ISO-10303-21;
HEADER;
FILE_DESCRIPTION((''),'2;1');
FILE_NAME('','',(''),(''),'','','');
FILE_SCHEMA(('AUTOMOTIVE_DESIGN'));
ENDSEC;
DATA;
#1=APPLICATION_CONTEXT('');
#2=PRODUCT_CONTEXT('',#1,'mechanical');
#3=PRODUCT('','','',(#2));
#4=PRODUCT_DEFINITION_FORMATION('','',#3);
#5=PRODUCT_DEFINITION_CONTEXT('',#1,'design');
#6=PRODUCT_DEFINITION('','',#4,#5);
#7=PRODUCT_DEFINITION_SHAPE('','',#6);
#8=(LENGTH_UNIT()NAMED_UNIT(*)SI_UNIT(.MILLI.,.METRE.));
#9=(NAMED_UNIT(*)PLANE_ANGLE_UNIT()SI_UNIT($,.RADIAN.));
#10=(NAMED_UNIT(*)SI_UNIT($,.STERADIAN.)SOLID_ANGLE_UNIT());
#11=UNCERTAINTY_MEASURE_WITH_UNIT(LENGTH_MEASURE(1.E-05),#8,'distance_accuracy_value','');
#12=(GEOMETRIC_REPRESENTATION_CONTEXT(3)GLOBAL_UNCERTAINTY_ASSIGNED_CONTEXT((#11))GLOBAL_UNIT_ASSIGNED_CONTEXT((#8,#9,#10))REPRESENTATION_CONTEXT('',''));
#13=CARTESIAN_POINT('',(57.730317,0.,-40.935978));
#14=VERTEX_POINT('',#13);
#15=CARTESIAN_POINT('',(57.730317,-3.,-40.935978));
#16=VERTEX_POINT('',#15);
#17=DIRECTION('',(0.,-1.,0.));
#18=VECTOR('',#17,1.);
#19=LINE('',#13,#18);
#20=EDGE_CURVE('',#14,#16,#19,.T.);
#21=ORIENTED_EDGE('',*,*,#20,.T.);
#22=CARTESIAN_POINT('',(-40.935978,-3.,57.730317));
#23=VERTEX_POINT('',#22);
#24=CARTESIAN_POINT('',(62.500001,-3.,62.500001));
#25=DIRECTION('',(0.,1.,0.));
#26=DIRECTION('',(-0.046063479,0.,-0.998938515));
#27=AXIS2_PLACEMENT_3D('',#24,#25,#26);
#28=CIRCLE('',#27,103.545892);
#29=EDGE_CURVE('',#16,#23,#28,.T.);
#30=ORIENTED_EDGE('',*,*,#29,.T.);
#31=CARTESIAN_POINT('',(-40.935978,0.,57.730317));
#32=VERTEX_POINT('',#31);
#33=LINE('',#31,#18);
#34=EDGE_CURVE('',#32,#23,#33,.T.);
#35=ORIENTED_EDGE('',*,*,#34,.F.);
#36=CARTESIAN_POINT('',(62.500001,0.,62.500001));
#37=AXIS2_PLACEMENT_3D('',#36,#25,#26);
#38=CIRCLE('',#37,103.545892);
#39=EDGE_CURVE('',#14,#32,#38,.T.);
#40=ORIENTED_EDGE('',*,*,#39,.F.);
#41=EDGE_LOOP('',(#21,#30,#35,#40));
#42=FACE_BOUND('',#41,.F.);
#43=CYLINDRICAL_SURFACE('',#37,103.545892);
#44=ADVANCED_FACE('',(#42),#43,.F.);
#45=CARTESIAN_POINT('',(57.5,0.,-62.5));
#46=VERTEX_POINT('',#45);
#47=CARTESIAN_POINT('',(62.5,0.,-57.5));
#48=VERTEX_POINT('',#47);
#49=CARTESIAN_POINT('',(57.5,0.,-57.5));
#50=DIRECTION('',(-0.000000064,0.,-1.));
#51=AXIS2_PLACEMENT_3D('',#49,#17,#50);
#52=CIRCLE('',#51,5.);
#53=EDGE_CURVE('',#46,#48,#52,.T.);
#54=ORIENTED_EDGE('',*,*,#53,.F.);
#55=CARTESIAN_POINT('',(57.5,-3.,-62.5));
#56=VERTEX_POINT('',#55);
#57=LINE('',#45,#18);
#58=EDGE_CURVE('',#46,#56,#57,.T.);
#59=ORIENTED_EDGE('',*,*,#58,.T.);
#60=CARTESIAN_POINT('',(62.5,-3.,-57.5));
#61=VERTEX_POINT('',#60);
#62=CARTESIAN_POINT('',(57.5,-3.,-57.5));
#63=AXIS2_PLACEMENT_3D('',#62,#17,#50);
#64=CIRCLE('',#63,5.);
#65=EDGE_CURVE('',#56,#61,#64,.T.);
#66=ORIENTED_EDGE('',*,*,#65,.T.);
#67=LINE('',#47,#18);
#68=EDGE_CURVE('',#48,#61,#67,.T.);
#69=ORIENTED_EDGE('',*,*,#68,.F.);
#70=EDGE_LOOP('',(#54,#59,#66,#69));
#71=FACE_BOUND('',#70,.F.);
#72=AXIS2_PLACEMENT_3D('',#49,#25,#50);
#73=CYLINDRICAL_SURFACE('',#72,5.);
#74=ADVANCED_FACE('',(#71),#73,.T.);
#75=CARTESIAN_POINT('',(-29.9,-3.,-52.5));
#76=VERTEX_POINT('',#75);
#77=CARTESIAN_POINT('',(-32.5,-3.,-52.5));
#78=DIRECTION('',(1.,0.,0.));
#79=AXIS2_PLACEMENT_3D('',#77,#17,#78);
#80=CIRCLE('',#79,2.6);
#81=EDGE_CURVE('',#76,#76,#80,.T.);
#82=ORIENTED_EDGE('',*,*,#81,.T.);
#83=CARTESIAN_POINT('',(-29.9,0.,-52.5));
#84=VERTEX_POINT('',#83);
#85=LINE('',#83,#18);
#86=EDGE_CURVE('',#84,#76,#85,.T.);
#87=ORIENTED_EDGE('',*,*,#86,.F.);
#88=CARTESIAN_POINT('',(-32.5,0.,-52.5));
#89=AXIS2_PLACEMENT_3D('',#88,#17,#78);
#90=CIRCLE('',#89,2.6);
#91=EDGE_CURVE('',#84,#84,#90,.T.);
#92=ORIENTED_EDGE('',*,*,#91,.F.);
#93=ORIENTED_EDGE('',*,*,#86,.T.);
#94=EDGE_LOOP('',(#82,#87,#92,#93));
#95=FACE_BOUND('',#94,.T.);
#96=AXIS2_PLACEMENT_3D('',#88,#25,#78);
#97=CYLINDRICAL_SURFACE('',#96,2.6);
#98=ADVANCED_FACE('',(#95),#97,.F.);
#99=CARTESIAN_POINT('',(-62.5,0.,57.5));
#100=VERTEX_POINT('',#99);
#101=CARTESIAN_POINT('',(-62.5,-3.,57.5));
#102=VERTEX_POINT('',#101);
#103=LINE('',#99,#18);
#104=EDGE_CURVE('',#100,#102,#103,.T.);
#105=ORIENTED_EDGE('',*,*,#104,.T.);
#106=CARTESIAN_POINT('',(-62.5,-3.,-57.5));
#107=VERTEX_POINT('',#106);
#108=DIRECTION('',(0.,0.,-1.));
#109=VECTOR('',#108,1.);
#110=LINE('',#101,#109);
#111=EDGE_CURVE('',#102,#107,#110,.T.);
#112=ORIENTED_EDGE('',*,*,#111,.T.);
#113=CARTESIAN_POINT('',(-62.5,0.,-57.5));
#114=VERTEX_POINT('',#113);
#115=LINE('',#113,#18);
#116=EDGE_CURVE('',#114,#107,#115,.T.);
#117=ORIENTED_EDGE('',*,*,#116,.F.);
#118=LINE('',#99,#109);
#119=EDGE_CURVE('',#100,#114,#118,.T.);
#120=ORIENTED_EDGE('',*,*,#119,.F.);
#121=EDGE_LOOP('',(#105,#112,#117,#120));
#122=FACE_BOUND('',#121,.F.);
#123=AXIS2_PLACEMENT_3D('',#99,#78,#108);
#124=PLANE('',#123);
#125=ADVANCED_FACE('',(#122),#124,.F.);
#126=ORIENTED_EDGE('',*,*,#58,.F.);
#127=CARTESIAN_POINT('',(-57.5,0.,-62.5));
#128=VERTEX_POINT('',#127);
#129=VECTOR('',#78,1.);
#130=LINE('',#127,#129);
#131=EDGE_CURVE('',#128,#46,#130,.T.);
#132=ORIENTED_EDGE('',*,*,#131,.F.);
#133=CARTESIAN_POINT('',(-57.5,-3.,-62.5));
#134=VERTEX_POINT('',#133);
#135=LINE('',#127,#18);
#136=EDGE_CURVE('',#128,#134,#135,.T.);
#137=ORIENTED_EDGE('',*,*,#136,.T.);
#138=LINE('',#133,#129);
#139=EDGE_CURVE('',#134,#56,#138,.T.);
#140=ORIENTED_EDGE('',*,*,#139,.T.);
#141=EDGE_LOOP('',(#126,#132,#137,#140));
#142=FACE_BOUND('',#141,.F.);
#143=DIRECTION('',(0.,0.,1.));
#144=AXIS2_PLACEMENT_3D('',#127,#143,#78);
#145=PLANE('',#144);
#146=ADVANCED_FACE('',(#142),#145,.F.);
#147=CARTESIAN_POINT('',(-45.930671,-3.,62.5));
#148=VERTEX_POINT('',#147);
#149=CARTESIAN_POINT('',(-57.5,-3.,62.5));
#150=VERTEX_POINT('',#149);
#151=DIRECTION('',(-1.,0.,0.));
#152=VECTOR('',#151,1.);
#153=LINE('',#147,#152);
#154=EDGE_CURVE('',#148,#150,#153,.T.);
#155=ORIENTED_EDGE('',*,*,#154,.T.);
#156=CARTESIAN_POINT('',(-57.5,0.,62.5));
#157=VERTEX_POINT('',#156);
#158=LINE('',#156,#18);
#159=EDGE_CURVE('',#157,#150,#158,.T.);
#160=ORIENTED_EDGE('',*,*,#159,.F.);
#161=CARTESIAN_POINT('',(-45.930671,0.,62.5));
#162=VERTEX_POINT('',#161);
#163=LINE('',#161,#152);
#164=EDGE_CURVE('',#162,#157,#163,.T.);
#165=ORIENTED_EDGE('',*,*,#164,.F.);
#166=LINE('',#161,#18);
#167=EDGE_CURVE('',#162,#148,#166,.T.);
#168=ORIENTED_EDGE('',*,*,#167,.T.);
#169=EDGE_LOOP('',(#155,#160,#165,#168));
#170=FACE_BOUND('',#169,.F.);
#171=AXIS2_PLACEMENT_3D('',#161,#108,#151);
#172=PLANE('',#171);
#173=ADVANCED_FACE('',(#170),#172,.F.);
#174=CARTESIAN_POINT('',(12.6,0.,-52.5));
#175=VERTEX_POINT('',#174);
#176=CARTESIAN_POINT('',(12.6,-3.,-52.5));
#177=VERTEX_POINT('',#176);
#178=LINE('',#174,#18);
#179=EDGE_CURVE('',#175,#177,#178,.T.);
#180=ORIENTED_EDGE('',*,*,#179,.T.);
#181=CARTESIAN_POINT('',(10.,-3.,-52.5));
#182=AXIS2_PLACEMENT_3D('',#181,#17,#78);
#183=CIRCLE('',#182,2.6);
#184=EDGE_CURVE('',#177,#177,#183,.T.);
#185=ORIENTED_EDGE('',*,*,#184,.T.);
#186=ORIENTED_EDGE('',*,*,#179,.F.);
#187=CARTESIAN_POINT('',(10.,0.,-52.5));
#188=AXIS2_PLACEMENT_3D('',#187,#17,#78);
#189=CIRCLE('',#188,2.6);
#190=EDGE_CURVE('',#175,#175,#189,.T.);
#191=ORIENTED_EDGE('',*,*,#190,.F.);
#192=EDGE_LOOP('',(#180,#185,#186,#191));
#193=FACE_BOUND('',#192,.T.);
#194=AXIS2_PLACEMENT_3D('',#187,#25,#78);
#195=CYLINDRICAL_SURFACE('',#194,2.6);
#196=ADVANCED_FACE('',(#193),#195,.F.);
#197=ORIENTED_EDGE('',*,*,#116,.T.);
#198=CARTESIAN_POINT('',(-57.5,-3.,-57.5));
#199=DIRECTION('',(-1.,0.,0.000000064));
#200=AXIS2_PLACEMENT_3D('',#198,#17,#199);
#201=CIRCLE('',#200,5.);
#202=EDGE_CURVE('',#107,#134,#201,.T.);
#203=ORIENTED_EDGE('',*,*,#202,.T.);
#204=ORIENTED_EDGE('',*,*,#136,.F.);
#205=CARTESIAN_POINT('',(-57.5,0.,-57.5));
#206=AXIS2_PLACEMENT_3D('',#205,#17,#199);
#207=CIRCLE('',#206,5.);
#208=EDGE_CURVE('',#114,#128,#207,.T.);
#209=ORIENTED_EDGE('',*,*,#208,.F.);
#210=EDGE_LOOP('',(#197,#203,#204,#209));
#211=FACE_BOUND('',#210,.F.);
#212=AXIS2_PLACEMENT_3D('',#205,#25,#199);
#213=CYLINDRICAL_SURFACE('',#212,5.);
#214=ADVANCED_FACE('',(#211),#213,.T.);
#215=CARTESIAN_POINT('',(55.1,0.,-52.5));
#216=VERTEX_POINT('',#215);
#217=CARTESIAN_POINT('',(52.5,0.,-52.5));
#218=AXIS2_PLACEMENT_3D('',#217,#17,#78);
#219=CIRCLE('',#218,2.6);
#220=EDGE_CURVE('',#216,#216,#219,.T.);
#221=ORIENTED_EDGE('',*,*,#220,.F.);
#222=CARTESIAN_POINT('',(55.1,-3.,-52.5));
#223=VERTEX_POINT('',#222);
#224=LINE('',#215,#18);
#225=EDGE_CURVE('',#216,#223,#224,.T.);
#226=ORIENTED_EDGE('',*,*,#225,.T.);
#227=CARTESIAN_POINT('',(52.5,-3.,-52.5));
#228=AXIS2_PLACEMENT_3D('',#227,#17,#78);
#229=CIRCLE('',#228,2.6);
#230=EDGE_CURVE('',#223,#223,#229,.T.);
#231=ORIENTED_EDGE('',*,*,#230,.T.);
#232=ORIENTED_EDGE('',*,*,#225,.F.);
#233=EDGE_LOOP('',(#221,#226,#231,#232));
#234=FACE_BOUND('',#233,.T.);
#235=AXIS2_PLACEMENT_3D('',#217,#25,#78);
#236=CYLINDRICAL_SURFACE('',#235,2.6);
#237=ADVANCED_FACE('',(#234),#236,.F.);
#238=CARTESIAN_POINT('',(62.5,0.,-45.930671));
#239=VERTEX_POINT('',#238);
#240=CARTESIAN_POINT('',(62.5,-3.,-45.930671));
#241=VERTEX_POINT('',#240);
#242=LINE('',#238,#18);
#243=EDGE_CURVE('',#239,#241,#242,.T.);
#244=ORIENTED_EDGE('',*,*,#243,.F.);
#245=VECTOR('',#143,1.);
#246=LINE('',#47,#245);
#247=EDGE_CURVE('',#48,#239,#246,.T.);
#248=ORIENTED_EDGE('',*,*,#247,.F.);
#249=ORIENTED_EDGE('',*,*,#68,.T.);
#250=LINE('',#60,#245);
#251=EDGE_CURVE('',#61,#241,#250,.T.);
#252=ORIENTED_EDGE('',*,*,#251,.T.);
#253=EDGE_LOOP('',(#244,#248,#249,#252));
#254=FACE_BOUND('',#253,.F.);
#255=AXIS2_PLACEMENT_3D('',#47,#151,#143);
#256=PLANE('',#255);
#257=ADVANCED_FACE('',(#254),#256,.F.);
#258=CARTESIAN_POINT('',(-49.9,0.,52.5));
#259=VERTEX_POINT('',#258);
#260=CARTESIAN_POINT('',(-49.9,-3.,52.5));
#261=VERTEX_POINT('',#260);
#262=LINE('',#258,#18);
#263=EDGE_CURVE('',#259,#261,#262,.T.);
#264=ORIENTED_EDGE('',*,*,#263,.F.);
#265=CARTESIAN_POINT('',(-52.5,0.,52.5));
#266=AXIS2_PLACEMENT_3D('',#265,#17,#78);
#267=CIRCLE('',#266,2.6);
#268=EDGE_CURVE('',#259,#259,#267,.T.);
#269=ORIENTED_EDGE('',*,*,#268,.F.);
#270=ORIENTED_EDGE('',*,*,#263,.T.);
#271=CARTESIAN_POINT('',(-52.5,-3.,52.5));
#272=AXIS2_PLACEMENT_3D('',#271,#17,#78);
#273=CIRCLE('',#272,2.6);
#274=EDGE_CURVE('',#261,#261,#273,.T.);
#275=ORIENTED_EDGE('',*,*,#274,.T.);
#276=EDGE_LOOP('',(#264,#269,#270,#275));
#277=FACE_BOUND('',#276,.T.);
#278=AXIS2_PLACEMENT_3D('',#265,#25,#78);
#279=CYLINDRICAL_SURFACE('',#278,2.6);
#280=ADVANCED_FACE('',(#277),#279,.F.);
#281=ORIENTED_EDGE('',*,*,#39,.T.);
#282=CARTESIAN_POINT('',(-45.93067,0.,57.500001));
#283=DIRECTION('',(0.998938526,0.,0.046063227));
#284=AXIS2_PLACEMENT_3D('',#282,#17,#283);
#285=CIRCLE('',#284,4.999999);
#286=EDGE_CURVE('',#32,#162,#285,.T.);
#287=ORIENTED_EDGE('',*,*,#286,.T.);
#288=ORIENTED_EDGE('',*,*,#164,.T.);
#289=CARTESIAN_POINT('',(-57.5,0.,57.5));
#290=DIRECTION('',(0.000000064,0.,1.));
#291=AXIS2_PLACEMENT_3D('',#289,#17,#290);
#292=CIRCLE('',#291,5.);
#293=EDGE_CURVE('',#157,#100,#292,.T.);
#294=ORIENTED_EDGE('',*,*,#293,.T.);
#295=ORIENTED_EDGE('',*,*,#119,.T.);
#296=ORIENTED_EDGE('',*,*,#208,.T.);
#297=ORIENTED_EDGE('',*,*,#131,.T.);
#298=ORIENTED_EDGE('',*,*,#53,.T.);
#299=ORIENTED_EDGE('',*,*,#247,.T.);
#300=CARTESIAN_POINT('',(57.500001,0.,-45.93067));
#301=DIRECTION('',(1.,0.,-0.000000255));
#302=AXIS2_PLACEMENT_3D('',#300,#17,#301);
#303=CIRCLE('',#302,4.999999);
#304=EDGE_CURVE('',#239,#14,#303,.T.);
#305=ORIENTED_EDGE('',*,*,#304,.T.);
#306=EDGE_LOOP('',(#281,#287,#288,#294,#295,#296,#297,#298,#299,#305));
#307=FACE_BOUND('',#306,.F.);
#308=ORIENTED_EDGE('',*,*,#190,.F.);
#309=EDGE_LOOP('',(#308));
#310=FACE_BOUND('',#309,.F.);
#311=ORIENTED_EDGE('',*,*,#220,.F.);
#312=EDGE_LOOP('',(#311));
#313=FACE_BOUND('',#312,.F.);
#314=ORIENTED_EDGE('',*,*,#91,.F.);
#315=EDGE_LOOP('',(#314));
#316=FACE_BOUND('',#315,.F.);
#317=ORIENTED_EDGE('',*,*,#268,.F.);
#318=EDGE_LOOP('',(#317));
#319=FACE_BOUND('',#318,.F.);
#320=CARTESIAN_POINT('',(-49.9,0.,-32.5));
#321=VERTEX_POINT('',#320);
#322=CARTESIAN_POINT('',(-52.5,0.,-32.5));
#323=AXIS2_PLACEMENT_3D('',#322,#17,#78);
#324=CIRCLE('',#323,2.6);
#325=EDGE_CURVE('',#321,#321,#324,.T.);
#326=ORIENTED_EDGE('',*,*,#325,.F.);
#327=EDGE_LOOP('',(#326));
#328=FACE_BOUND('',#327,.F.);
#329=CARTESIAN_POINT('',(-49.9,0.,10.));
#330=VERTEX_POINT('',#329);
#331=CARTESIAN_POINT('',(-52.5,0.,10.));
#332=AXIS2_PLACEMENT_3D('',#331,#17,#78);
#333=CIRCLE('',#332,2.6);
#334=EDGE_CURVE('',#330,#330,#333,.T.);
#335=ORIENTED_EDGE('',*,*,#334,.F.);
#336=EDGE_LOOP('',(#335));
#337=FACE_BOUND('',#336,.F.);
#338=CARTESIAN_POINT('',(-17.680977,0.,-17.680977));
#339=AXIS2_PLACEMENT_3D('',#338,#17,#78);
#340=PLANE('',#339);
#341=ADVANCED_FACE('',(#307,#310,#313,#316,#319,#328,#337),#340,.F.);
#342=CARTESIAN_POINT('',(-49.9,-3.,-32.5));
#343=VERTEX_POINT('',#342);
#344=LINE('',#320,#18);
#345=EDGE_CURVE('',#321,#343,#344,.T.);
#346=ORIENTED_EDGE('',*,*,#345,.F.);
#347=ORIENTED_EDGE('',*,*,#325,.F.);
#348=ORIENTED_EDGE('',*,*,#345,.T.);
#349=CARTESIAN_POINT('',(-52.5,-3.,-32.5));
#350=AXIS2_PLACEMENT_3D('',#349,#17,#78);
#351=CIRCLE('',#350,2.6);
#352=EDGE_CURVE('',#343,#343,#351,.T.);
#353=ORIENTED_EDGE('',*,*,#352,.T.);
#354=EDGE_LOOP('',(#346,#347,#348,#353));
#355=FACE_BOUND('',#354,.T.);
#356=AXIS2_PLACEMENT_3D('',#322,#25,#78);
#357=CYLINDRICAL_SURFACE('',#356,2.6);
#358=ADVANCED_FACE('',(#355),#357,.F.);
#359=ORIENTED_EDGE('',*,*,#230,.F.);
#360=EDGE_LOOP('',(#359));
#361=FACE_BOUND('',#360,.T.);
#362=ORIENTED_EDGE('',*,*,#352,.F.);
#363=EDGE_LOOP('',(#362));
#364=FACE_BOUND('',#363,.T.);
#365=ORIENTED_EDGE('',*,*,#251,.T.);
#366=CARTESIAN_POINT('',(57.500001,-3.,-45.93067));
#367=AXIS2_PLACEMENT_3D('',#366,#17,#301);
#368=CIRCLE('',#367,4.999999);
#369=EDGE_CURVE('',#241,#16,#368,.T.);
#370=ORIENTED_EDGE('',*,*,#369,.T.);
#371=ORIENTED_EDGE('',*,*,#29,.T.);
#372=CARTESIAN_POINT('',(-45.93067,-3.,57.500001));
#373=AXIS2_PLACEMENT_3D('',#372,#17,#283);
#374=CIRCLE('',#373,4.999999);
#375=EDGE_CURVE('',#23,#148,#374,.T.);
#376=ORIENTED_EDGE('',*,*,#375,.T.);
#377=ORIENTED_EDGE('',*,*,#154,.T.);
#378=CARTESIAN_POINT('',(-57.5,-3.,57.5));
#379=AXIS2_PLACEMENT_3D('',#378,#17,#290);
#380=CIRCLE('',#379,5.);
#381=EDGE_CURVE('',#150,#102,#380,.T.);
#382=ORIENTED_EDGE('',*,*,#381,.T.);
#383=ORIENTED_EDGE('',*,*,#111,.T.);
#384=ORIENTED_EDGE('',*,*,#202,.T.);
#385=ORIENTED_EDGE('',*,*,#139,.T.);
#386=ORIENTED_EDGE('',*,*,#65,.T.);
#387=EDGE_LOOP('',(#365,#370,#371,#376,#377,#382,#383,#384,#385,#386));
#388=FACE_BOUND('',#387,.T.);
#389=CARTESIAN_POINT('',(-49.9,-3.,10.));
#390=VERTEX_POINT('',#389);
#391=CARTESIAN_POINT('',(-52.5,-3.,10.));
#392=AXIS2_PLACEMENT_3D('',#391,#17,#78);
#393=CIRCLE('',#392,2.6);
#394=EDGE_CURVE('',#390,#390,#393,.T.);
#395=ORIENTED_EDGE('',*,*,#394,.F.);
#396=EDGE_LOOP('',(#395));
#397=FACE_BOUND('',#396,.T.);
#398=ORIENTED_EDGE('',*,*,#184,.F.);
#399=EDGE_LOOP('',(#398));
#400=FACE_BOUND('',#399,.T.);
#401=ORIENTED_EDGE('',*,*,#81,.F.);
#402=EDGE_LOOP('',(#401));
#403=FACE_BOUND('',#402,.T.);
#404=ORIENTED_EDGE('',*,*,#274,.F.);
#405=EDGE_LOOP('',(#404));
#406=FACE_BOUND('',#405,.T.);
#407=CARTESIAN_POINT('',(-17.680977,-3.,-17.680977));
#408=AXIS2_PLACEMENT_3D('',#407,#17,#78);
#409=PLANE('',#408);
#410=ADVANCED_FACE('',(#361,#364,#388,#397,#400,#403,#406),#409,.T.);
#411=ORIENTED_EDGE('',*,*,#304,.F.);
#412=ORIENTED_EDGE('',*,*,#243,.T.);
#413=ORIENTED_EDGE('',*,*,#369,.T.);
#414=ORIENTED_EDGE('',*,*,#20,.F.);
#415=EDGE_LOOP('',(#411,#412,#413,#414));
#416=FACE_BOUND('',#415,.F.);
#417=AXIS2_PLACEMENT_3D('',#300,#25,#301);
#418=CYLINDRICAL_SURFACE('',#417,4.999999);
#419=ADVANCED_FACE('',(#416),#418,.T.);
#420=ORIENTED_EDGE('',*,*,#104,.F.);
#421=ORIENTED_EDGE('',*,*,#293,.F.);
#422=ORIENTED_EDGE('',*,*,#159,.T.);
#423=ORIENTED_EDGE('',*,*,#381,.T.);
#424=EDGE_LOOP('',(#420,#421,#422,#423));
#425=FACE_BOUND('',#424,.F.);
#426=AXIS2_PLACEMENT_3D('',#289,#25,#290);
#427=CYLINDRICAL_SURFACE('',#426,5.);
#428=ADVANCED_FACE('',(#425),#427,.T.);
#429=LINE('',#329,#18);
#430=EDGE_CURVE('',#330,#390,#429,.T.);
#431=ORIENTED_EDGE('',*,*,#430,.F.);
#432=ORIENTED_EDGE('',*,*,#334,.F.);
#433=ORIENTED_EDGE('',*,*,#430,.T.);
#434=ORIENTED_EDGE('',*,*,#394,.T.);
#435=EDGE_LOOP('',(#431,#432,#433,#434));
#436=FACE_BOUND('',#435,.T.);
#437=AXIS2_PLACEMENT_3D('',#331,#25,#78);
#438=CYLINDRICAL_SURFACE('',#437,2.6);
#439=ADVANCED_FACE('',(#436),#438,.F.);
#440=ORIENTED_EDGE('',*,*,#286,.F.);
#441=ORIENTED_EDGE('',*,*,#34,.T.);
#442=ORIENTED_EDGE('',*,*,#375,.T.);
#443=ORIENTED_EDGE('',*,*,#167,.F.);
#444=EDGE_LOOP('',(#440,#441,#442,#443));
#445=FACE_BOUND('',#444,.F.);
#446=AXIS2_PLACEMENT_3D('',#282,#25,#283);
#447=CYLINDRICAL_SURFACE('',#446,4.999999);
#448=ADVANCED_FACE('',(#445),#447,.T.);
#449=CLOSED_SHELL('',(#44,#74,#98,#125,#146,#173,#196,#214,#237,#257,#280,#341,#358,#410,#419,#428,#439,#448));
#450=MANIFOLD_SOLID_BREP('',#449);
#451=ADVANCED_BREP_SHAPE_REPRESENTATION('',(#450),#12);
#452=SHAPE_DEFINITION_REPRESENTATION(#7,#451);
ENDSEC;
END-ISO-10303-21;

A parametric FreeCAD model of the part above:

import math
import FreeCAD as App
import Part
import Sketcher
from FreeCAD import Vector
Q = App.Units.Quantity

doc = App.newDocument("Part")
body = doc.addObject("PartDesign::Body", "Body")

sketch1 = doc.addObject("Sketcher::SketchObject", "Sketch")
body.addObject(sketch1)
sketch1.AttachmentSupport = (doc.XZ_Plane, [""])
sketch1.MapMode = "FlatFace"
sketch1.addGeometry([
    Part.LineSegment(Vector(-57.5, -62.5, 0), Vector(57.5, -62.5, 0)),
    Part.ArcOfCircle(Part.Circle(Vector(57.5, -57.5, 0), Vector(0, 0, 1), 5), math.radians(-90.000004), math.radians(0.000004)),
    Part.LineSegment(Vector(62.5, -57.5, 0), Vector(62.5, -45.930671, 0)),
    Part.ArcOfCircle(Part.Circle(Vector(57.500001, -45.93067, 0), Vector(0, 0, 1), 4.999999), math.radians(-0.000015), math.radians(87.359837)),
    Part.ArcOfCircle(Part.Circle(Vector(62.500001, 62.500001, 0), Vector(0, 0, 1), 103.545892), math.radians(-177.359823), math.radians(-92.640177)),
    Part.ArcOfCircle(Part.Circle(Vector(-45.93067, 57.500001, 0), Vector(0, 0, 1), 4.999999), math.radians(2.640163), math.radians(90.000015)),
    Part.LineSegment(Vector(-45.930671, 62.5, 0), Vector(-57.5, 62.5, 0)),
    Part.ArcOfCircle(Part.Circle(Vector(-57.5, 57.5, 0), Vector(0, 0, 1), 5), math.radians(89.999996), math.radians(180.000004)),
    Part.LineSegment(Vector(-62.5, 57.5, 0), Vector(-62.5, -57.5, 0)),
    Part.ArcOfCircle(Part.Circle(Vector(-57.5, -57.5, 0), Vector(0, 0, 1), 5), math.radians(179.999996), math.radians(270.000004)),
    Part.Circle(Vector(-32.5, -52.5, 0), Vector(0, 0, 1), 2.6),
    Part.Circle(Vector(-52.5, -32.5, 0), Vector(0, 0, 1), 2.6),
    Part.Circle(Vector(10, -52.5, 0), Vector(0, 0, 1), 2.6),
    Part.Circle(Vector(52.5, -52.5, 0), Vector(0, 0, 1), 2.6),
    Part.Circle(Vector(-52.5, 10, 0), Vector(0, 0, 1), 2.6),
    Part.Circle(Vector(-52.5, 52.5, 0), Vector(0, 0, 1), 2.6),
], False)
sketch1.addConstraint([
    Sketcher.Constraint("Tangent", 0, 2, 1, 1),
    Sketcher.Constraint("Tangent", 1, 2, 2, 1),
    Sketcher.Constraint("Tangent", 2, 2, 3, 1),
    Sketcher.Constraint("Tangent", 3, 2, 4, 2),
    Sketcher.Constraint("Tangent", 4, 1, 5, 1),
    Sketcher.Constraint("Tangent", 5, 2, 6, 1),
    Sketcher.Constraint("Tangent", 6, 2, 7, 1),
    Sketcher.Constraint("Tangent", 7, 2, 8, 1),
    Sketcher.Constraint("Tangent", 8, 2, 9, 1),
    Sketcher.Constraint("Tangent", 9, 2, 0, 1),
    Sketcher.Constraint("Horizontal", 0),
    Sketcher.Constraint("Vertical", 2),
    Sketcher.Constraint("Horizontal", 6),
    Sketcher.Constraint("Vertical", 8),
    Sketcher.Constraint("Equal", 1, 3),
    Sketcher.Constraint("Equal", 3, 5),
    Sketcher.Constraint("Equal", 5, 7),
    Sketcher.Constraint("Equal", 7, 9),
    Sketcher.Constraint("Equal", 10, 11),
    Sketcher.Constraint("Equal", 11, 12),
    Sketcher.Constraint("Equal", 12, 13),
    Sketcher.Constraint("Equal", 13, 14),
    Sketcher.Constraint("Equal", 14, 15),
    Sketcher.Constraint("Symmetric", 1, 3, 7, 3, -1, 1),
    Sketcher.Constraint("Symmetric", 13, 3, 15, 3, -1, 1),
    Sketcher.Constraint("Horizontal", 10, 3, 12, 3),
    Sketcher.Constraint("Horizontal", 12, 3, 13, 3),
    Sketcher.Constraint("Horizontal", 4, 3, 5, 2),
    Sketcher.Constraint("Vertical", 11, 3, 14, 3),
    Sketcher.Constraint("Vertical", 14, 3, 15, 3),
    Sketcher.Constraint("Vertical", 4, 3, 1, 2),
    Sketcher.Constraint("Equal", 6, 2),
    Sketcher.Constraint("Radius", 1, Q("5 mm")),
    Sketcher.Constraint("Diameter", 10, Q("5.2 mm")),
    Sketcher.Constraint("DistanceX", 0, 1, 0, 2, Q("115 mm")),
    Sketcher.Constraint("DistanceX", -1, 1, 12, 3, Q("10 mm")),
    Sketcher.Constraint("DistanceY", -1, 1, 14, 3, Q("10 mm")),
    Sketcher.Constraint("DistanceX", 9, 3, 10, 3, Q("25 mm")),
    Sketcher.Constraint("DistanceY", 9, 3, 10, 3, Q("5 mm")),
    Sketcher.Constraint("DistanceX", 9, 3, 11, 3, Q("5 mm")),
    Sketcher.Constraint("DistanceY", 9, 3, 11, 3, Q("25 mm")),
    Sketcher.Constraint("Radius", 4, Q("103.545892 mm")),
])
pad1 = doc.addObject("PartDesign::Pad", "Pad")
body.addObject(pad1)
pad1.Profile = sketch1
pad1.Length = 3

doc.recompute()
